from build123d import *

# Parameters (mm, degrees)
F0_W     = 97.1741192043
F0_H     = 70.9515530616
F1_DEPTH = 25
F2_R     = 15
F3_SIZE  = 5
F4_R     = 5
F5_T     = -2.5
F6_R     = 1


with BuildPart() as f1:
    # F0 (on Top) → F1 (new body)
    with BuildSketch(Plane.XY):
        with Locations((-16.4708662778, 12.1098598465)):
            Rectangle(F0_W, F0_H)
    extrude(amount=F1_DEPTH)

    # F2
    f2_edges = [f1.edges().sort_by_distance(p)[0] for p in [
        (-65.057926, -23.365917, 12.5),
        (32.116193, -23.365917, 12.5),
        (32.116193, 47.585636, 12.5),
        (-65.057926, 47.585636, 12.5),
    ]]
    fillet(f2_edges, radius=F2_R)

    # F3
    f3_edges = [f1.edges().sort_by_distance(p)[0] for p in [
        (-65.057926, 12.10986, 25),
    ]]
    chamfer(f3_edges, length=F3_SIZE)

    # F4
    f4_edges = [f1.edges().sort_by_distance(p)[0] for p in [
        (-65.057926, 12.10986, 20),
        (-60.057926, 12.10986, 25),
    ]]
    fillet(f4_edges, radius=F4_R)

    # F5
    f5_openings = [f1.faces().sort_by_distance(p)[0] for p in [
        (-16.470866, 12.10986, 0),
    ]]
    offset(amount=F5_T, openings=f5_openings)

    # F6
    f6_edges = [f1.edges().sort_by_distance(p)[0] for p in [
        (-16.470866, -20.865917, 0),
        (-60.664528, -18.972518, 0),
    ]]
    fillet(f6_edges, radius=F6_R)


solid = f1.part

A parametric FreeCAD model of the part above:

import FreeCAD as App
import Part
import Sketcher
from FreeCAD import Vector


def edges_at(feature, points):
    """Names of the edges that pass closest to the given points."""
    edges = feature.Shape.Edges
    near = lambda p: min(range(len(edges)), key=lambda i: edges[i].distToShape(Part.Vertex(*p))[0])
    return sorted({f"Edge{near(p) + 1}" for p in points})


def faces_at(feature, points):
    """Names of the faces that lie closest to the given points."""
    faces = feature.Shape.Faces
    near = lambda p: min(range(len(faces)), key=lambda i: faces[i].distToShape(Part.Vertex(*p))[0])
    return sorted({f"Face{near(p) + 1}" for p in points})

doc = App.newDocument("Part")
body = doc.addObject("PartDesign::Body", "Body")

sketch1 = body.newObject("Sketcher::SketchObject", "Sketch")
sketch1.AttachmentSupport = (doc.getObject("XY_Plane"), [""])
sketch1.MapMode = "FlatFace"
sketch1.addGeometry(Part.LineSegment(Vector(-65, 48, 0), Vector(-65, -23, 0)), False)
sketch1.addGeometry(Part.LineSegment(Vector(-65, -23, 0), Vector(32, -23, 0)), False)
sketch1.addGeometry(Part.LineSegment(Vector(32, -23, 0), Vector(32, 48, 0)), False)
sketch1.addGeometry(Part.LineSegment(Vector(32, 48, 0), Vector(-65, 48, 0)), False)
sketch1.addConstraint(Sketcher.Constraint("Coincident", 0, 2, 1, 1))
sketch1.addConstraint(Sketcher.Constraint("Coincident", 1, 2, 2, 1))
sketch1.addConstraint(Sketcher.Constraint("Coincident", 2, 2, 3, 1))
sketch1.addConstraint(Sketcher.Constraint("Coincident", 3, 2, 0, 1))
sketch1.addConstraint(Sketcher.Constraint("Vertical", 0))
sketch1.addConstraint(Sketcher.Constraint("Horizontal", 1))
sketch1.addConstraint(Sketcher.Constraint("Vertical", 2))
sketch1.addConstraint(Sketcher.Constraint("Horizontal", 3))
sketch1.addConstraint(Sketcher.Constraint("DistanceX", 1, 1, 1, 2, 97.174119))
sketch1.addConstraint(Sketcher.Constraint("DistanceY", 0, 2, 0, 1, 70.951553))
sketch1.addConstraint(Sketcher.Constraint("DistanceX", 0, 2, -1, 1, 65.057926))
sketch1.addConstraint(Sketcher.Constraint("DistanceY", 0, 2, -1, 1, 23.365917))
pad1 = body.newObject("PartDesign::Pad", "Pad")
pad1.Profile = sketch1
pad1.Length = 25
doc.recompute()

fillet = body.newObject("PartDesign::Fillet", "Fillet")
fillet.Base = (pad1, edges_at(pad1, [
    (-65.058, -23.366, 12.5),
    (32.116, -23.366, 12.5),
    (32.116, 47.586, 12.5),
    (-65.058, 47.586, 12.5),
]))
fillet.Radius = 15
doc.recompute()

chamfer = body.newObject("PartDesign::Chamfer", "Chamfer")
chamfer.Base = (fillet, edges_at(fillet, [(-65.058, 12.11, 25)]))
chamfer.Size = 5
doc.recompute()

fillet2 = body.newObject("PartDesign::Fillet", "Fillet001")
fillet2.Base = (chamfer, edges_at(chamfer, [(-65.058, 12.11, 20), (-60.058, 12.11, 25)]))
fillet2.Radius = 5
doc.recompute()

thickness = body.newObject("PartDesign::Thickness", "Thickness")
thickness.Base = (fillet2, faces_at(fillet2, [(-16.471, 12.11, 0)]))
thickness.Value = 2.5
thickness.Reversed = True
thickness.Join = "Arc"
doc.recompute()

fillet3 = body.newObject("PartDesign::Fillet", "Fillet002")
fillet3.Base = (thickness, edges_at(thickness, [(-16.471, -20.866, 0), (-60.665, -18.973, 0)]))
fillet3.Radius = 1

doc.recompute()
